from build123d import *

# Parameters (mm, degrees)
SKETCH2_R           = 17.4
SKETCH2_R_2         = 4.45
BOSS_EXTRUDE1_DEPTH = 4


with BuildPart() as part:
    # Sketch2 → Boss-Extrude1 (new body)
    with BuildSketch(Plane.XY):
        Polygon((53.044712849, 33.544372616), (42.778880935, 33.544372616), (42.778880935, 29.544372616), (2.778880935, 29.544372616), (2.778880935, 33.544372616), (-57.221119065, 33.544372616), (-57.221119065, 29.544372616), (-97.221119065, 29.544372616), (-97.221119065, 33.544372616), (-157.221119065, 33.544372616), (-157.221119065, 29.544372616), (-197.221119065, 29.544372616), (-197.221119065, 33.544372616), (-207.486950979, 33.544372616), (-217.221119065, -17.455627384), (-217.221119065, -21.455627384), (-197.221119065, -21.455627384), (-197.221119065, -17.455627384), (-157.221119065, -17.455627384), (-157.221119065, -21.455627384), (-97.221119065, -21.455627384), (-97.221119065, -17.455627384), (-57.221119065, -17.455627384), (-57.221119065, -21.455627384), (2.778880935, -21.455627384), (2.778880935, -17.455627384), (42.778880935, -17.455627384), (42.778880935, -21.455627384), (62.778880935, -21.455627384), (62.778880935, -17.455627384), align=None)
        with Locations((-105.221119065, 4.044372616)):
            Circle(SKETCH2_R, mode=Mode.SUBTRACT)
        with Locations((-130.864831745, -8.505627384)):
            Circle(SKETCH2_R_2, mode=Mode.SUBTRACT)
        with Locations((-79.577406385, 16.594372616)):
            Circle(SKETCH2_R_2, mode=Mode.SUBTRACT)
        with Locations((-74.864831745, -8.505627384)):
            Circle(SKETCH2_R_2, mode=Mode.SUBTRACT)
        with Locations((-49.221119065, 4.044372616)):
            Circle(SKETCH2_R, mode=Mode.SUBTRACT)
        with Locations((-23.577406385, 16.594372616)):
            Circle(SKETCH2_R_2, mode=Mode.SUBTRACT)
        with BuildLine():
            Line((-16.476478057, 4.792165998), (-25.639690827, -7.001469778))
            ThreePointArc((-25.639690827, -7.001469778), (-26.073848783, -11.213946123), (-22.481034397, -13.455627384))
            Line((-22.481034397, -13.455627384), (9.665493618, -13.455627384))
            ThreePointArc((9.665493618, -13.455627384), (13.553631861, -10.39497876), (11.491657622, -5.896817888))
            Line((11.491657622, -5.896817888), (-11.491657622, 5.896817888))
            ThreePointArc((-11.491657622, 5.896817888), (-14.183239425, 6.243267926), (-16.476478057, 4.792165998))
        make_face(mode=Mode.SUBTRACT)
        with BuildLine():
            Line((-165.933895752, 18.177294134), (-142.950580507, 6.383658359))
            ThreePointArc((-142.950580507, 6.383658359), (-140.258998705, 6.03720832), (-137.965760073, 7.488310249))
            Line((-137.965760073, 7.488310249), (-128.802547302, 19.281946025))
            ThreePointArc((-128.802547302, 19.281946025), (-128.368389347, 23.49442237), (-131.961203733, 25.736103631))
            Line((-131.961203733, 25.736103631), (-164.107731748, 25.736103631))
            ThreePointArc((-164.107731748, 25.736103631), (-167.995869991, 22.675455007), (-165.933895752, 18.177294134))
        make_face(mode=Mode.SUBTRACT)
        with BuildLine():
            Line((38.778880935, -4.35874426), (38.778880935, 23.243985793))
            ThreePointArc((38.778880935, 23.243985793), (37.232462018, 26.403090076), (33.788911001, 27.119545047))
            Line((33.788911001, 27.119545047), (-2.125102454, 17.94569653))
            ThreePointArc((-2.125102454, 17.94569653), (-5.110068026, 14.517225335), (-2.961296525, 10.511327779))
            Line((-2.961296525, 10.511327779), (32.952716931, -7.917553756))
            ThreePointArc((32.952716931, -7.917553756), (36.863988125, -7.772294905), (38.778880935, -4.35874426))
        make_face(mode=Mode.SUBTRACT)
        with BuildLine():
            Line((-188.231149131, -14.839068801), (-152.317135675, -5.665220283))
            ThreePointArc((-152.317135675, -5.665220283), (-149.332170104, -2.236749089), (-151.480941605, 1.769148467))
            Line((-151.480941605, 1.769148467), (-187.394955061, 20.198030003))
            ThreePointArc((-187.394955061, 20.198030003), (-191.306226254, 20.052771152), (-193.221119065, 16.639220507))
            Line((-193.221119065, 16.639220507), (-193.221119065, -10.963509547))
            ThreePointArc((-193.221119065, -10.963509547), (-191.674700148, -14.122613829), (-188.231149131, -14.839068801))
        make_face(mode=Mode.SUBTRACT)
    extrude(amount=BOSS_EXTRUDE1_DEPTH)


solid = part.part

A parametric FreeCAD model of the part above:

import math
import FreeCAD as App
import Part
import Sketcher


def add_polygon(sketch, points):
    """Adds a closed chain of lines whose ends are joined by coincident constraints."""
    first, n = sketch.GeometryCount, len(points)
    for a, b in zip(points, points[1:] + points[:1]):
        sketch.addGeometry(Part.LineSegment(App.Vector(*a, 0), App.Vector(*b, 0)), False)
    for i in range(n):
        sketch.addConstraint(Sketcher.Constraint("Coincident", first + i, 2, first + (i + 1) % n, 1))

doc = App.newDocument("Part")
body = doc.addObject("PartDesign::Body", "Body")

# Sketch on XY plane
sketch1 = body.newObject("Sketcher::SketchObject", "Sketch")
sketch1.AttachmentSupport = (doc.getObject("XY_Plane"), [""])
sketch1.MapMode = "FlatFace"
add_polygon(sketch1, [(53, 33.5), (42.8, 33.5), (42.8, 29.5), (2.8, 29.5), (2.8, 33.5), (-57.2, 33.5), (-57.2, 29.5), (-97.2, 29.5), (-97.2, 33.5), (-157.2, 33.5), (-157.2, 29.5), (-197.2, 29.5), (-197.2, 33.5), (-207.5, 33.5), (-217.2, -17.5), (-217.2, -21.5), (-197.2, -21.5), (-197.2, -17.5), (-157.2, -17.5), (-157.2, -21.5), (-97.2, -21.5), (-97.2, -17.5), (-57.2, -17.5), (-57.2, -21.5), (2.8, -21.5), (2.8, -17.5), (42.8, -17.5), (42.8, -21.5), (62.8, -21.5), (62.8, -17.5)])  # lines 0-29
sketch1.addGeometry(Part.Circle(App.Vector(-130.9, -8.5, 0), App.Vector(0, 0, 1), 4.5), False)  # 30
sketch1.addGeometry(Part.LineSegment(App.Vector(-152.3, -5.7, 0), App.Vector(-188.2, -14.8, 0)), False)  # 31
sketch1.addGeometry(Part.ArcOfCircle(Part.Circle(App.Vector(-189.2, -11, 0), App.Vector(0, 0, 1), 4), math.radians(-180), math.radians(-76)), False)  # 32
sketch1.addGeometry(Part.LineSegment(App.Vector(-193.2, -11, 0), App.Vector(-193.2, 16.6, 0)), False)  # 33
sketch1.addGeometry(Part.ArcOfCircle(Part.Circle(App.Vector(-189.2, 16.6, 0), App.Vector(0, 0, 1), 4), math.radians(63), math.radians(180)), False)  # 34
sketch1.addGeometry(Part.LineSegment(App.Vector(-187.4, 20.2, 0), App.Vector(-151.5, 1.8, 0)), False)  # 35
sketch1.addGeometry(Part.ArcOfCircle(Part.Circle(App.Vector(-153.3, -1.8, 0), App.Vector(0, 0, 1), 4), math.radians(-76), math.radians(63)), False)  # 36
sketch1.addGeometry(Part.Circle(App.Vector(-105.2, 4, 0), App.Vector(0, 0, 1), 17.4), False)  # 37
sketch1.addGeometry(Part.Circle(App.Vector(-74.9, -8.5, 0), App.Vector(0, 0, 1), 4.5), False)  # 38
sketch1.addGeometry(Part.Circle(App.Vector(-49.2, 4, 0), App.Vector(0, 0, 1), 17.4), False)  # 39
sketch1.addGeometry(Part.LineSegment(App.Vector(-25.6, -7, 0), App.Vector(-16.5, 4.8, 0)), False)  # 40
sketch1.addGeometry(Part.ArcOfCircle(Part.Circle(App.Vector(-13.3, 2.3, 0), App.Vector(0, 0, 1), 4), math.radians(63), math.radians(142)), False)  # 41
sketch1.addGeometry(Part.LineSegment(App.Vector(-11.5, 5.9, 0), App.Vector(11.5, -5.9, 0)), False)  # 42
sketch1.addGeometry(Part.ArcOfCircle(Part.Circle(App.Vector(9.7, -9.5, 0), App.Vector(0, 0, 1), 4), math.radians(-90), math.radians(63)), False)  # 43
sketch1.addGeometry(Part.LineSegment(App.Vector(9.7, -13.5, 0), App.Vector(-22.5, -13.5, 0)), False)  # 44
sketch1.addGeometry(Part.ArcOfCircle(Part.Circle(App.Vector(-22.5, -9.5, 0), App.Vector(0, 0, 1), 4), math.radians(142), math.radians(270)), False)  # 45
sketch1.addGeometry(Part.LineSegment(App.Vector(-143, 6.4, 0), App.Vector(-165.9, 18.2, 0)), False)  # 46
sketch1.addGeometry(Part.ArcOfCircle(Part.Circle(App.Vector(-164.1, 21.7, 0), App.Vector(0, 0, 1), 4), math.radians(90), math.radians(243)), False)  # 47
sketch1.addGeometry(Part.LineSegment(App.Vector(-164.1, 25.7, 0), App.Vector(-132, 25.7, 0)), False)  # 48
sketch1.addGeometry(Part.ArcOfCircle(Part.Circle(App.Vector(-132, 21.7, 0), App.Vector(0, 0, 1), 4), math.radians(-38), math.radians(90)), False)  # 49
sketch1.addGeometry(Part.LineSegment(App.Vector(-128.8, 19.3, 0), App.Vector(-138, 7.5, 0)), False)  # 50
sketch1.addGeometry(Part.ArcOfCircle(Part.Circle(App.Vector(-141.1, 9.9, 0), App.Vector(0, 0, 1), 4), math.radians(-117), math.radians(-38)), False)  # 51
sketch1.addGeometry(Part.Circle(App.Vector(-79.6, 16.6, 0), App.Vector(0, 0, 1), 4.5), False)  # 52
sketch1.addGeometry(Part.Circle(App.Vector(-23.6, 16.6, 0), App.Vector(0, 0, 1), 4.5), False)  # 53
sketch1.addGeometry(Part.LineSegment(App.Vector(38.8, 23.2, 0), App.Vector(38.8, -4.4, 0)), False)  # 54
sketch1.addGeometry(Part.ArcOfCircle(Part.Circle(App.Vector(34.8, -4.4, 0), App.Vector(0, 0, 1), 4), math.radians(-117), math.radians(0)), False)  # 55
sketch1.addGeometry(Part.LineSegment(App.Vector(33, -7.9, 0), App.Vector(-3, 10.5, 0)), False)  # 56
sketch1.addGeometry(Part.ArcOfCircle(Part.Circle(App.Vector(-1.1, 14.1, 0), App.Vector(0, 0, 1), 4), math.radians(104), math.radians(243)), False)  # 57
sketch1.addGeometry(Part.LineSegment(App.Vector(-2.1, 17.9, 0), App.Vector(33.8, 27.1, 0)), False)  # 58
sketch1.addGeometry(Part.ArcOfCircle(Part.Circle(App.Vector(34.8, 23.2, 0), App.Vector(0, 0, 1), 4), math.radians(0), math.radians(104)), False)  # 59
sketch1.addConstraint(Sketcher.Constraint("Tangent", 31, 2, 32, 2))
sketch1.addConstraint(Sketcher.Constraint("Tangent", 32, 1, 33, 1))
sketch1.addConstraint(Sketcher.Constraint("Tangent", 33, 2, 34, 2))
sketch1.addConstraint(Sketcher.Constraint("Tangent", 34, 1, 35, 1))
sketch1.addConstraint(Sketcher.Constraint("Tangent", 35, 2, 36, 2))
sketch1.addConstraint(Sketcher.Constraint("Tangent", 36, 1, 31, 1))
sketch1.addConstraint(Sketcher.Constraint("Tangent", 40, 2, 41, 2))
sketch1.addConstraint(Sketcher.Constraint("Tangent", 41, 1, 42, 1))
sketch1.addConstraint(Sketcher.Constraint("Tangent", 42, 2, 43, 2))
sketch1.addConstraint(Sketcher.Constraint("Tangent", 43, 1, 44, 1))
sketch1.addConstraint(Sketcher.Constraint("Tangent", 44, 2, 45, 2))
sketch1.addConstraint(Sketcher.Constraint("Tangent", 45, 1, 40, 1))
sketch1.addConstraint(Sketcher.Constraint("Tangent", 46, 2, 47, 2))
sketch1.addConstraint(Sketcher.Constraint("Tangent", 47, 1, 48, 1))
sketch1.addConstraint(Sketcher.Constraint("Tangent", 48, 2, 49, 2))
sketch1.addConstraint(Sketcher.Constraint("Tangent", 49, 1, 50, 1))
sketch1.addConstraint(Sketcher.Constraint("Tangent", 50, 2, 51, 2))
sketch1.addConstraint(Sketcher.Constraint("Tangent", 51, 1, 46, 1))
sketch1.addConstraint(Sketcher.Constraint("Tangent", 54, 2, 55, 2))
sketch1.addConstraint(Sketcher.Constraint("Tangent", 55, 1, 56, 1))
sketch1.addConstraint(Sketcher.Constraint("Tangent", 56, 2, 57, 2))
sketch1.addConstraint(Sketcher.Constraint("Tangent", 57, 1, 58, 1))
sketch1.addConstraint(Sketcher.Constraint("Tangent", 58, 2, 59, 2))
sketch1.addConstraint(Sketcher.Constraint("Tangent", 59, 1, 54, 1))
sketch1.addConstraint(Sketcher.Constraint("Horizontal", 0))
sketch1.addConstraint(Sketcher.Constraint("Vertical", 1))
sketch1.addConstraint(Sketcher.Constraint("Horizontal", 2))
sketch1.addConstraint(Sketcher.Constraint("Vertical", 3))
sketch1.addConstraint(Sketcher.Constraint("Horizontal", 4))
sketch1.addConstraint(Sketcher.Constraint("Vertical", 5))
sketch1.addConstraint(Sketcher.Constraint("Horizontal", 6))
sketch1.addConstraint(Sketcher.Constraint("Vertical", 7))
sketch1.addConstraint(Sketcher.Constraint("Horizontal", 8))
sketch1.addConstraint(Sketcher.Constraint("Vertical", 9))
sketch1.addConstraint(Sketcher.Constraint("Horizontal", 10))
sketch1.addConstraint(Sketcher.Constraint("Vertical", 11))
sketch1.addConstraint(Sketcher.Constraint("Horizontal", 12))
sketch1.addConstraint(Sketcher.Constraint("Vertical", 14))
sketch1.addConstraint(Sketcher.Constraint("Horizontal", 15))
sketch1.addConstraint(Sketcher.Constraint("Vertical", 16))
sketch1.addConstraint(Sketcher.Constraint("Horizontal", 17))
sketch1.addConstraint(Sketcher.Constraint("Vertical", 18))
sketch1.addConstraint(Sketcher.Constraint("Horizontal", 19))
sketch1.addConstraint(Sketcher.Constraint("Vertical", 20))
sketch1.addConstraint(Sketcher.Constraint("Horizontal", 21))
sketch1.addConstraint(Sketcher.Constraint("Vertical", 22))
sketch1.addConstraint(Sketcher.Constraint("Horizontal", 23))
sketch1.addConstraint(Sketcher.Constraint("Vertical", 24))
sketch1.addConstraint(Sketcher.Constraint("Horizontal", 25))
sketch1.addConstraint(Sketcher.Constraint("Vertical", 26))
sketch1.addConstraint(Sketcher.Constraint("Horizontal", 27))
sketch1.addConstraint(Sketcher.Constraint("Vertical", 28))
sketch1.addConstraint(Sketcher.Constraint("Vertical", 33))
sketch1.addConstraint(Sketcher.Constraint("Horizontal", 44))
sketch1.addConstraint(Sketcher.Constraint("Horizontal", 48))
sketch1.addConstraint(Sketcher.Constraint("Vertical", 54))
sketch1.addConstraint(Sketcher.Constraint("Equal", 32, 34))
sketch1.addConstraint(Sketcher.Constraint("Equal", 34, 36))
sketch1.addConstraint(Sketcher.Constraint("Equal", 30, 38))
sketch1.addConstraint(Sketcher.Constraint("Equal", 37, 39))
sketch1.addConstraint(Sketcher.Constraint("Equal", 36, 41))
sketch1.addConstraint(Sketcher.Constraint("Equal", 41, 43))
sketch1.addConstraint(Sketcher.Constraint("Equal", 43, 45))
sketch1.addConstraint(Sketcher.Constraint("Equal", 45, 47))
sketch1.addConstraint(Sketcher.Constraint("Equal", 47, 49))
sketch1.addConstraint(Sketcher.Constraint("Equal", 49, 51))
sketch1.addConstraint(Sketcher.Constraint("Equal", 38, 52))
sketch1.addConstraint(Sketcher.Constraint("Equal", 52, 53))
sketch1.addConstraint(Sketcher.Constraint("Equal", 51, 55))
sketch1.addConstraint(Sketcher.Constraint("Equal", 55, 57))
sketch1.addConstraint(Sketcher.Constraint("Equal", 57, 59))
sketch1.addConstraint(Sketcher.Constraint("Symmetric", 41, 1, 42, 2, -1, 1))
sketch1.addConstraint(Sketcher.Constraint("Parallel", 35, 42))
sketch1.addConstraint(Sketcher.Constraint("Parallel", 42, 46))
sketch1.addConstraint(Sketcher.Constraint("Parallel", 40, 50))
sketch1.addConstraint(Sketcher.Constraint("Parallel", 46, 56))
sketch1.addConstraint(Sketcher.Constraint("Parallel", 31, 58))
sketch1.addConstraint(Sketcher.Constraint("Horizontal", 30, 3, 38, 3))
sketch1.addConstraint(Sketcher.Constraint("Horizontal", 37, 3, 39, 3))
sketch1.addConstraint(Sketcher.Constraint("Horizontal", 52, 3, 53, 3))
sketch1.addConstraint(Sketcher.Constraint("Horizontal", 0, 2, 3, 2))
sketch1.addConstraint(Sketcher.Constraint("Horizontal", 2, 2, 5, 2))
sketch1.addConstraint(Sketcher.Constraint("Horizontal", 4, 2, 7, 2))
sketch1.addConstraint(Sketcher.Constraint("Horizontal", 6, 2, 9, 2))
sketch1.addConstraint(Sketcher.Constraint("Horizontal", 8, 2, 11, 2))
sketch1.addConstraint(Sketcher.Constraint("Horizontal", 13, 2, 16, 2))
sketch1.addConstraint(Sketcher.Constraint("Horizontal", 15, 2, 18, 2))
sketch1.addConstraint(Sketcher.Constraint("Horizontal", 17, 2, 20, 2))
sketch1.addConstraint(Sketcher.Constraint("Horizontal", 19, 2, 22, 2))
sketch1.addConstraint(Sketcher.Constraint("Horizontal", 21, 2, 24, 2))
sketch1.addConstraint(Sketcher.Constraint("Horizontal", 23, 2, 26, 2))
sketch1.addConstraint(Sketcher.Constraint("Horizontal", 25, 2, 28, 2))
sketch1.addConstraint(Sketcher.Constraint("Vertical", 11, 2, 15, 2))
sketch1.addConstraint(Sketcher.Constraint("Vertical", 9, 2, 17, 2))
sketch1.addConstraint(Sketcher.Constraint("Vertical", 7, 2, 19, 2))
sketch1.addConstraint(Sketcher.Constraint("Vertical", 5, 2, 21, 2))
sketch1.addConstraint(Sketcher.Constraint("Vertical", 3, 2, 23, 2))
sketch1.addConstraint(Sketcher.Constraint("Vertical", 1, 2, 25, 2))
sketch1.addConstraint(Sketcher.Constraint("Equal", 2, 6))
sketch1.addConstraint(Sketcher.Constraint("Equal", 4, 8))
sketch1.addConstraint(Sketcher.Constraint("Equal", 6, 10))
sketch1.addConstraint(Sketcher.Constraint("Equal", 0, 12))
sketch1.addConstraint(Sketcher.Constraint("Equal", 15, 27))
sketch1.addConstraint(Sketcher.Constraint("Equal", 44, 48))
sketch1.addConstraint(Sketcher.Constraint("Equal", 11, 14))
sketch1.addConstraint(Sketcher.Constraint("Equal", 33, 54))
sketch1.addConstraint(Sketcher.Constraint("Radius", 32, 4.0))
sketch1.addConstraint(Sketcher.Constraint("Diameter", 30, 8.9))
sketch1.addConstraint(Sketcher.Constraint("Diameter", 37, 34.8))
sketch1.addConstraint(Sketcher.Constraint("DistanceX", 2, 2, 2, 1, 40.0))
sketch1.addConstraint(Sketcher.Constraint("DistanceX", 4, 2, 4, 1, 60.0))
sketch1.addConstraint(Sketcher.Constraint("DistanceX", 15, 1, 15, 2, 20.0))
sketch1.addConstraint(Sketcher.Constraint("DistanceY", 1, 2, 1, 1, 4.0))
sketch1.addConstraint(Sketcher.Constraint("DistanceX", 0, 2, 0, 1, 10.265832))
sketch1.addConstraint(Sketcher.Constraint("DistanceX", 44, 2, 44, 1, 32.146528))
sketch1.addConstraint(Sketcher.Constraint("DistanceY", 33, 1, 33, 2, 27.60273))
sketch1.addConstraint(Sketcher.Constraint("Distance", 13, 51.920651))
sketch1.addConstraint(Sketcher.Constraint("Distance", 31, 37.06718))
sketch1.addConstraint(Sketcher.Constraint("Distance", 42, 25.832588))
sketch1.addConstraint(Sketcher.Constraint("DistanceX", 30, 3, -1, 1, 130.864832))
sketch1.addConstraint(Sketcher.Constraint("DistanceX", 32, 3, -1, 1, 189.221119))
sketch1.addConstraint(Sketcher.Constraint("DistanceY", 32, 3, -1, 1, 10.96351))
sketch1.addConstraint(Sketcher.Constraint("DistanceY", 36, 3, -1, 1, 1.789661))
sketch1.addConstraint(Sketcher.Constraint("DistanceX", 37, 3, -1, 1, 105.221119))
sketch1.addConstraint(Sketcher.Constraint("DistanceX", 38, 3, -1, 1, 74.864832))
sketch1.addConstraint(Sketcher.Constraint("DistanceX", 39, 3, -1, 1, 49.221119))
sketch1.addConstraint(Sketcher.Constraint("DistanceX", 47, 3, -1, 1, 164.107732))
sketch1.addConstraint(Sketcher.Constraint("DistanceX", -1, 1, 55, 3, 34.778881))
sketch1.addConstraint(Sketcher.Constraint("DistanceX", -1, 1, 0, 2, 42.778881))
sketch1.addConstraint(Sketcher.Constraint("DistanceY", -1, 1, 50, 2, 7.48831))
sketch1.addConstraint(Sketcher.Constraint("DistanceY", 30, 3, -1, 1, 8.505627))
sketch1.addConstraint(Sketcher.Constraint("DistanceY", -1, 1, 37, 3, 4.044373))
sketch1.addConstraint(Sketcher.Constraint("DistanceX", 52, 3, -1, 1, 79.577406))
sketch1.addConstraint(Sketcher.Constraint("DistanceY", -1, 1, 52, 3, 16.594373))
sketch1.addConstraint(Sketcher.Constraint("DistanceX", 53, 3, -1, 1, 23.577406))
sketch1.addConstraint(Sketcher.Constraint("DistanceY", 55, 3, -1, 1, 4.358744))
sketch1.addConstraint(Sketcher.Constraint("DistanceY", -1, 1, 0, 2, 33.544373))
pad1 = body.newObject("PartDesign::Pad", "Pad")
pad1.Profile = sketch1
pad1.Length = 4

doc.recompute()
